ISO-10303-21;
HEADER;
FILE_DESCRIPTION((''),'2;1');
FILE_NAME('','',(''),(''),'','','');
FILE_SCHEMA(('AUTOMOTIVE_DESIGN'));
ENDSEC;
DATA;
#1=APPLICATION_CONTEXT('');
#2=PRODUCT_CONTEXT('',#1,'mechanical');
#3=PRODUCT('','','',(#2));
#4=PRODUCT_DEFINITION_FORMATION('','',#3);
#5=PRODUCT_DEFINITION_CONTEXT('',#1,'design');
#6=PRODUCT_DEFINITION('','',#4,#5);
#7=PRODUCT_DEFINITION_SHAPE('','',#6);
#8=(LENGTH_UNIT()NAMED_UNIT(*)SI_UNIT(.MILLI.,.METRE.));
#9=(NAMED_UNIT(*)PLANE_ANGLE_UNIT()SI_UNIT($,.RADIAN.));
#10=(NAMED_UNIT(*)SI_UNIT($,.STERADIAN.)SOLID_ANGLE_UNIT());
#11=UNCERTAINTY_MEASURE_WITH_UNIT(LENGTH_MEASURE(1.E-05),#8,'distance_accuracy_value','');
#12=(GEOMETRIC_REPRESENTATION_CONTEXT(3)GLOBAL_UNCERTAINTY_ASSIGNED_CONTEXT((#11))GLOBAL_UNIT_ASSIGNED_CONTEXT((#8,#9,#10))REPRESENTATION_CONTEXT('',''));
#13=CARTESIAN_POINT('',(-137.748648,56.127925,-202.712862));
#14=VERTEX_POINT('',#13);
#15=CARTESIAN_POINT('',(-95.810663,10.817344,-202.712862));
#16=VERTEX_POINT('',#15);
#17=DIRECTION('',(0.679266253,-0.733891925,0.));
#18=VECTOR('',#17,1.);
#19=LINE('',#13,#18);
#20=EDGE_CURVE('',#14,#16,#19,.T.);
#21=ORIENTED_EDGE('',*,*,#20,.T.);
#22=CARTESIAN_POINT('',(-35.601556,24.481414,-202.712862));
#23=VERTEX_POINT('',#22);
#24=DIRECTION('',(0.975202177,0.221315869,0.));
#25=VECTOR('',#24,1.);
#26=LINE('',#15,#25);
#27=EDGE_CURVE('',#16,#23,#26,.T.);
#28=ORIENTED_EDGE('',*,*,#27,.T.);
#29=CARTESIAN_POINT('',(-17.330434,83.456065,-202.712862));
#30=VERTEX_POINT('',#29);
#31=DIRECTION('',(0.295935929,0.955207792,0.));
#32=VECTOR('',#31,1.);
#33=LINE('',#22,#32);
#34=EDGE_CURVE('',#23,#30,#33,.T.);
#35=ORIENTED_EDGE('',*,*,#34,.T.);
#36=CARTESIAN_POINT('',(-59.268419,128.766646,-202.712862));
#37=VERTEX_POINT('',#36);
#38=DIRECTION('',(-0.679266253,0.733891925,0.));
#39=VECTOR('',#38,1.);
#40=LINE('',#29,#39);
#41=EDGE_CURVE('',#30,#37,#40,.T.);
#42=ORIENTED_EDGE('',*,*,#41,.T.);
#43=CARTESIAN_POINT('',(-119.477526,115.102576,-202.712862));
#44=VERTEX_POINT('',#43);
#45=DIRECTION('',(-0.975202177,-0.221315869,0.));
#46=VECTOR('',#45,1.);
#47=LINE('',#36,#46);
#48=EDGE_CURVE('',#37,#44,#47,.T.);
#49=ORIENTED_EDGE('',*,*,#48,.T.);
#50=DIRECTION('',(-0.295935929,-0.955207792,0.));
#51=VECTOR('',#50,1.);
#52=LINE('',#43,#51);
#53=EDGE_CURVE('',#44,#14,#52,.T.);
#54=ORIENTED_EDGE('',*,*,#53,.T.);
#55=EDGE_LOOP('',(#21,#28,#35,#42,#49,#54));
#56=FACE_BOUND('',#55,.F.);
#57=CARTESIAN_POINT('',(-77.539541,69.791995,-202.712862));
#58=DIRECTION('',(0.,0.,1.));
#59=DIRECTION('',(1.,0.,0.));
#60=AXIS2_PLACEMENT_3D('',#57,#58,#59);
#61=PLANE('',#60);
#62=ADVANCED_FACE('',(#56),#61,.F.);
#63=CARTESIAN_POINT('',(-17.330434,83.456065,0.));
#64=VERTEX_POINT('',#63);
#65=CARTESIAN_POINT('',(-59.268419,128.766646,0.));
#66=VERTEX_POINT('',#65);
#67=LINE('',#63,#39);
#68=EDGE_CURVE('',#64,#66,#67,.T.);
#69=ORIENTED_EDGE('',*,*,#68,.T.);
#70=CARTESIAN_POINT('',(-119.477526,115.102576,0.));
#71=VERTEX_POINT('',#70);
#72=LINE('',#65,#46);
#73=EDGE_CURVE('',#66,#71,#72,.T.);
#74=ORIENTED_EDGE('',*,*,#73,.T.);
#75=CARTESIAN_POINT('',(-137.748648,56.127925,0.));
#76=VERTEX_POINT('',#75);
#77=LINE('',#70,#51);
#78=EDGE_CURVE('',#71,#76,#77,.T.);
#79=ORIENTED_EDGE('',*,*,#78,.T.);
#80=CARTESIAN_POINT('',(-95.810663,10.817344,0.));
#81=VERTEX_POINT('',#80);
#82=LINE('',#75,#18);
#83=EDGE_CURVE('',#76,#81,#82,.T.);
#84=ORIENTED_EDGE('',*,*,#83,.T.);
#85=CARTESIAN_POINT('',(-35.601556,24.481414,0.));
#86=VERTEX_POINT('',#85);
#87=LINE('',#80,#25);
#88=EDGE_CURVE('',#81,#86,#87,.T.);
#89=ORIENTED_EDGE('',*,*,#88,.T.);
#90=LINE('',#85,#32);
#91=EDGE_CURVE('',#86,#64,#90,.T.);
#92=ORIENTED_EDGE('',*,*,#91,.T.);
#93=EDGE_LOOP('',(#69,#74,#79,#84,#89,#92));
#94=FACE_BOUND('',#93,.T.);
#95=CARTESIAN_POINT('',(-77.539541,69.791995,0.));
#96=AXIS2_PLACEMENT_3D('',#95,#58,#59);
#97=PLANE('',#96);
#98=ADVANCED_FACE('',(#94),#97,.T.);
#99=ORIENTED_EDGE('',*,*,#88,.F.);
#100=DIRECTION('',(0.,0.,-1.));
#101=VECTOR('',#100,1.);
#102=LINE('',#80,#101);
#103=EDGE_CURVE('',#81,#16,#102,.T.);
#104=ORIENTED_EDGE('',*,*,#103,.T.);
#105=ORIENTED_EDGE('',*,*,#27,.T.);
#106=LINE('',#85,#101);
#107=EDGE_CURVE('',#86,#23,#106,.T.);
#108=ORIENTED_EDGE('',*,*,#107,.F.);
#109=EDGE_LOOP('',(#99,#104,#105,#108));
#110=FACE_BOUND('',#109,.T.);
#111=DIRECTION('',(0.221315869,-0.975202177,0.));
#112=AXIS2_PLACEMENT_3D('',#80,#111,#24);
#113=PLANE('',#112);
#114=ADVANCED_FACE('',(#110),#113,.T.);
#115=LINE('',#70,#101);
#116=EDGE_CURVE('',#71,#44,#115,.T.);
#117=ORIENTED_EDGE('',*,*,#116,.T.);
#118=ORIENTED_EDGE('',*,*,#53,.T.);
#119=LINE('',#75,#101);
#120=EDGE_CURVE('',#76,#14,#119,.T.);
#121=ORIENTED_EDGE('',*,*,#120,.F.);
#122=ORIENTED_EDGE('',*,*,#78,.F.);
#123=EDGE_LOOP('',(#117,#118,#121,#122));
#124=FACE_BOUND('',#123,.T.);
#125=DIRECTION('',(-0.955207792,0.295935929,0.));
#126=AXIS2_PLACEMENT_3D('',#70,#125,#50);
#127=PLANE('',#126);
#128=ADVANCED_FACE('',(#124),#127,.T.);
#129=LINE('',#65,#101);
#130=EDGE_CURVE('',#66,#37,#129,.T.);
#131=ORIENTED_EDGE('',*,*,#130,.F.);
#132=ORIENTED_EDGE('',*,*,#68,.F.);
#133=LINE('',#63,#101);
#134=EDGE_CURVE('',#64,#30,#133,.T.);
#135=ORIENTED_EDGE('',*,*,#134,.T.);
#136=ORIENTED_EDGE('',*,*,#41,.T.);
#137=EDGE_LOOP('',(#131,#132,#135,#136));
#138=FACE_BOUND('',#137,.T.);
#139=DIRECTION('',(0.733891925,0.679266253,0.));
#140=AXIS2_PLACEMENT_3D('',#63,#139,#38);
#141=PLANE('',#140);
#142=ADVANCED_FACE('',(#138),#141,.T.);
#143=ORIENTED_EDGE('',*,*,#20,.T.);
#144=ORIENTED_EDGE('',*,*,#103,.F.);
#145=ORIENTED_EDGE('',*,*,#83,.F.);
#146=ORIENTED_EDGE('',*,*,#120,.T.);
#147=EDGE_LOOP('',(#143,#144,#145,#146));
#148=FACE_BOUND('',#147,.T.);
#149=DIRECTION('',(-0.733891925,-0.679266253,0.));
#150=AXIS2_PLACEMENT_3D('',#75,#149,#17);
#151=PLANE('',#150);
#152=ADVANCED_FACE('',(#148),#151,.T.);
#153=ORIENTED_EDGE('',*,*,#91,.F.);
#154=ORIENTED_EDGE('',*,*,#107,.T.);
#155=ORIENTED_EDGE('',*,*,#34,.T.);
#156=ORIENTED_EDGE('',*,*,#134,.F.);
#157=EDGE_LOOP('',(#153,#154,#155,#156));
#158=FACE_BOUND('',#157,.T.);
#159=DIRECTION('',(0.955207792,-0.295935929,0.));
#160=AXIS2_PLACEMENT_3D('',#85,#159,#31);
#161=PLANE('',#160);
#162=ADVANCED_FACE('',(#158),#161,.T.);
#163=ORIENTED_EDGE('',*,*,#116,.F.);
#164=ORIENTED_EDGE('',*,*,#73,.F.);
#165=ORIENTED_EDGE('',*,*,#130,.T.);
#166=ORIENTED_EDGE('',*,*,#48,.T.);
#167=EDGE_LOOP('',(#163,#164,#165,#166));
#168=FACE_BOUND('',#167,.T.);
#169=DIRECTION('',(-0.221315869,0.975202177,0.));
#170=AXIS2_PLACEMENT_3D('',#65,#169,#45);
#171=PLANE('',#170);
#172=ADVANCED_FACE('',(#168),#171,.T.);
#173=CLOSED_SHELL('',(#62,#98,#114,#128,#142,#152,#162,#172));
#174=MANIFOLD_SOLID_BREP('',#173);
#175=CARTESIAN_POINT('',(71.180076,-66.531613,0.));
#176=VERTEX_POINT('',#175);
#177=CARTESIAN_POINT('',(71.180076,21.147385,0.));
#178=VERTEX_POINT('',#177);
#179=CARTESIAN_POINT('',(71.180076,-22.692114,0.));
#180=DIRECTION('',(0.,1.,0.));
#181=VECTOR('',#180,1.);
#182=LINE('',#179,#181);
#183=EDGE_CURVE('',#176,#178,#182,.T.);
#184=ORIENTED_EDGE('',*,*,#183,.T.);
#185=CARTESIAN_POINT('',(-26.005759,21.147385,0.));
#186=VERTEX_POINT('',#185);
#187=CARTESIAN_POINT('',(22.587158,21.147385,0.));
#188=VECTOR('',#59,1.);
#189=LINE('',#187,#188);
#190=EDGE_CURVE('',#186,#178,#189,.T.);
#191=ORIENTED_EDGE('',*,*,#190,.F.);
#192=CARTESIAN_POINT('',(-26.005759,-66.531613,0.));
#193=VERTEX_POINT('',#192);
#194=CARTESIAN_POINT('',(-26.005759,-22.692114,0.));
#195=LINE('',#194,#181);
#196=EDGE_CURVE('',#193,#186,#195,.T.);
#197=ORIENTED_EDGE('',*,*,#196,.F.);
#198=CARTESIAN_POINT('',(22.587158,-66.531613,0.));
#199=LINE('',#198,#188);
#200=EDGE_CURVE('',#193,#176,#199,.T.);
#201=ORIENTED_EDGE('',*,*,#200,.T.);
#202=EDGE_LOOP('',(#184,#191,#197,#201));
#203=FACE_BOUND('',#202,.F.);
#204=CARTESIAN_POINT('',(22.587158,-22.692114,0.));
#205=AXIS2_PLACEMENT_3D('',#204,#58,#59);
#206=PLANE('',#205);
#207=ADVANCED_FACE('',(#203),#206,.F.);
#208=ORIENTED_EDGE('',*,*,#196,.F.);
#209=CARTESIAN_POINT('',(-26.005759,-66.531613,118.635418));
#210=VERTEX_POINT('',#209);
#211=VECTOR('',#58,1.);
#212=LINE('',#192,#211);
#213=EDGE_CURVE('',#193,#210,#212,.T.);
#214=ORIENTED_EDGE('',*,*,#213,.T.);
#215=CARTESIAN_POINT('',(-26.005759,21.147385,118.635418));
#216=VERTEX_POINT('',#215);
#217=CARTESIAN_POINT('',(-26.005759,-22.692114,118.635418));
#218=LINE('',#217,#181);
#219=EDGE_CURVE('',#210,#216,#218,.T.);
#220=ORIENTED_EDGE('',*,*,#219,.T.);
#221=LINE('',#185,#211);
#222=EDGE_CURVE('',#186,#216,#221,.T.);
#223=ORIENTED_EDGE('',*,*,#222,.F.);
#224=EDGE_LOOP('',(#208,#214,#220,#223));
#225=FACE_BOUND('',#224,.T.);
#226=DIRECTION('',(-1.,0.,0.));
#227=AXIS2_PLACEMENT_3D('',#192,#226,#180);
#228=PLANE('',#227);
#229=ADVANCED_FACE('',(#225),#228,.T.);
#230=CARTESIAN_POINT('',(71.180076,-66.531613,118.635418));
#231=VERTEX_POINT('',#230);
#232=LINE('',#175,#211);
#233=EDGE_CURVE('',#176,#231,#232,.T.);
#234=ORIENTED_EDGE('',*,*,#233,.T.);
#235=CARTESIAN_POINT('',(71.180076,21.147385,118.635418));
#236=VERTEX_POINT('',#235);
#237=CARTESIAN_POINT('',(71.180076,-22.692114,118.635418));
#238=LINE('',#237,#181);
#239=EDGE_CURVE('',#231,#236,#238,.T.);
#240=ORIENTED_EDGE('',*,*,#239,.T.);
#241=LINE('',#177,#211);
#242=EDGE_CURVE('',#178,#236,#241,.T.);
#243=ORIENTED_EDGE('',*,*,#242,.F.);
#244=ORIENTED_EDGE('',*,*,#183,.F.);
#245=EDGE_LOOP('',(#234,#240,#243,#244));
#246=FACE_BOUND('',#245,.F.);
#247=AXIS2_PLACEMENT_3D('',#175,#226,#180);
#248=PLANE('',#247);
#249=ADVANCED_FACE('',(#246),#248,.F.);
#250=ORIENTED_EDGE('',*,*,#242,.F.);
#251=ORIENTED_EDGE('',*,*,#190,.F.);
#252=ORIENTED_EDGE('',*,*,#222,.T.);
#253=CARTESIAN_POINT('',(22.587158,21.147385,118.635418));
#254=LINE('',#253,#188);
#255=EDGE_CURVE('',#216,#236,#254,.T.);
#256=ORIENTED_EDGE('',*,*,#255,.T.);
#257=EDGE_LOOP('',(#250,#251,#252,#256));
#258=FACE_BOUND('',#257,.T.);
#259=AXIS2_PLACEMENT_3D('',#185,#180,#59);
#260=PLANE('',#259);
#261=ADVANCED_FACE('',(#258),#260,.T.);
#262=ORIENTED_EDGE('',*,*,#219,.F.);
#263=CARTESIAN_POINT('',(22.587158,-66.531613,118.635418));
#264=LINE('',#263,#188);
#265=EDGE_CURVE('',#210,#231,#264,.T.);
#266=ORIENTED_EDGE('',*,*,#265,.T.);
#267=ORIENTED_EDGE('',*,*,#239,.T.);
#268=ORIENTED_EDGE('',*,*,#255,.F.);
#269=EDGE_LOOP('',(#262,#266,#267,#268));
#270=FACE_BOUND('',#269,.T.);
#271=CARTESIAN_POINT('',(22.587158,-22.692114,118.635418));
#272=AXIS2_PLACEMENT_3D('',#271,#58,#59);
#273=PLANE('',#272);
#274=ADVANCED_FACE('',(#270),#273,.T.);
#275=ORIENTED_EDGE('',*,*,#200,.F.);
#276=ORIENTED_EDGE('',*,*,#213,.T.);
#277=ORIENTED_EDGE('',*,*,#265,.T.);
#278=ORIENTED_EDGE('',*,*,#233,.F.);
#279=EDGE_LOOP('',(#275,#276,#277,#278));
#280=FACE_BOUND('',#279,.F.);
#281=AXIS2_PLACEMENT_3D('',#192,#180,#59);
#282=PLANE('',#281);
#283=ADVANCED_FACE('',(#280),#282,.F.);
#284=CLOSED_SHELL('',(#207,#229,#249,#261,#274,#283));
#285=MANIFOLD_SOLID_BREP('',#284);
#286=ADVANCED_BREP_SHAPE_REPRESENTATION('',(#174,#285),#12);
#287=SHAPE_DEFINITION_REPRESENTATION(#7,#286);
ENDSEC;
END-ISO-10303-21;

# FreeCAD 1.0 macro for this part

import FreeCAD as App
import Part
import Sketcher

V = App.Vector


def add_polygon(sketch, points):
    """Adds a closed chain of lines whose ends are joined by coincident constraints."""
    first, n = sketch.GeometryCount, len(points)
    for a, b in zip(points, points[1:] + points[:1]):
        sketch.addGeometry(Part.LineSegment(App.Vector(*a, 0), App.Vector(*b, 0)), False)
    for i in range(n):
        sketch.addConstraint(Sketcher.Constraint("Coincident", first + i, 2, first + (i + 1) % n, 1))

doc = App.newDocument("Part")
body = doc.addObject("PartDesign::Body", "Body")

sketch1 = doc.addObject("Sketcher::SketchObject", "Sketch")
body.addObject(sketch1)
sketch1.AttachmentSupport = (doc.XY_Plane, [""])
sketch1.MapMode = "FlatFace"
add_polygon(sketch1, [(-26, 21), (-26, -67), (71, -67), (71, 21)])
sketch1.addConstraint(Sketcher.Constraint("Vertical", 0))
sketch1.addConstraint(Sketcher.Constraint("Horizontal", 1))
sketch1.addConstraint(Sketcher.Constraint("Vertical", 2))
sketch1.addConstraint(Sketcher.Constraint("Horizontal", 3))
sketch1.addConstraint(Sketcher.Constraint("DistanceX", 1, 1, 1, 2, 97.185835))
sketch1.addConstraint(Sketcher.Constraint("DistanceY", 0, 2, 0, 1, 87.678998))
sketch1.addConstraint(Sketcher.Constraint("DistanceX", 0, 2, -1, 1, 26.005759))
sketch1.addConstraint(Sketcher.Constraint("DistanceY", 0, 2, -1, 1, 66.531613))
pad1 = doc.addObject("PartDesign::Pad", "Pad")
body.addObject(pad1)
pad1.Profile = sketch1
pad1.Length = 118.635418
body2 = doc.addObject("PartDesign::Body", "Body001")

sketch2 = doc.addObject("Sketcher::SketchObject", "Sketch001")
body2.addObject(sketch2)
sketch2.AttachmentSupport = (doc.getObject("XY_Plane001"), [""])
sketch2.MapMode = "FlatFace"
add_polygon(sketch2, [(-17, 83), (-59, 129), (-119, 115), (-138, 56), (-96, 11), (-36, 24)])
sketch2.addConstraint(Sketcher.Constraint("Parallel", 0, 3))
sketch2.addConstraint(Sketcher.Constraint("Parallel", 1, 4))
sketch2.addConstraint(Sketcher.Constraint("Parallel", 2, 5))
sketch2.addConstraint(Sketcher.Constraint("Equal", 0, 1))
sketch2.addConstraint(Sketcher.Constraint("Equal", 1, 2))
sketch2.addConstraint(Sketcher.Constraint("Equal", 2, 3))
sketch2.addConstraint(Sketcher.Constraint("DistanceX", 0, 2, -1, 1, 59.268419))
sketch2.addConstraint(Sketcher.Constraint("DistanceX", 2, 2, -1, 1, 137.748648))
sketch2.addConstraint(Sketcher.Constraint("DistanceY", 1, 2, 0, 2, 13.66407))
sketch2.addConstraint(Sketcher.Constraint("DistanceY", 2, 2, 1, 2, 58.974651))
sketch2.addConstraint(Sketcher.Constraint("DistanceY", 3, 2, 2, 2, 45.310581))
sketch2.addConstraint(Sketcher.Constraint("DistanceY", -1, 1, 0, 2, 128.766646))
pad2 = doc.addObject("PartDesign::Pad", "Pad001")
body2.addObject(pad2)
pad2.Profile = sketch2
pad2.Length = 202.712862
pad2.Reversed = True

doc.recompute()
